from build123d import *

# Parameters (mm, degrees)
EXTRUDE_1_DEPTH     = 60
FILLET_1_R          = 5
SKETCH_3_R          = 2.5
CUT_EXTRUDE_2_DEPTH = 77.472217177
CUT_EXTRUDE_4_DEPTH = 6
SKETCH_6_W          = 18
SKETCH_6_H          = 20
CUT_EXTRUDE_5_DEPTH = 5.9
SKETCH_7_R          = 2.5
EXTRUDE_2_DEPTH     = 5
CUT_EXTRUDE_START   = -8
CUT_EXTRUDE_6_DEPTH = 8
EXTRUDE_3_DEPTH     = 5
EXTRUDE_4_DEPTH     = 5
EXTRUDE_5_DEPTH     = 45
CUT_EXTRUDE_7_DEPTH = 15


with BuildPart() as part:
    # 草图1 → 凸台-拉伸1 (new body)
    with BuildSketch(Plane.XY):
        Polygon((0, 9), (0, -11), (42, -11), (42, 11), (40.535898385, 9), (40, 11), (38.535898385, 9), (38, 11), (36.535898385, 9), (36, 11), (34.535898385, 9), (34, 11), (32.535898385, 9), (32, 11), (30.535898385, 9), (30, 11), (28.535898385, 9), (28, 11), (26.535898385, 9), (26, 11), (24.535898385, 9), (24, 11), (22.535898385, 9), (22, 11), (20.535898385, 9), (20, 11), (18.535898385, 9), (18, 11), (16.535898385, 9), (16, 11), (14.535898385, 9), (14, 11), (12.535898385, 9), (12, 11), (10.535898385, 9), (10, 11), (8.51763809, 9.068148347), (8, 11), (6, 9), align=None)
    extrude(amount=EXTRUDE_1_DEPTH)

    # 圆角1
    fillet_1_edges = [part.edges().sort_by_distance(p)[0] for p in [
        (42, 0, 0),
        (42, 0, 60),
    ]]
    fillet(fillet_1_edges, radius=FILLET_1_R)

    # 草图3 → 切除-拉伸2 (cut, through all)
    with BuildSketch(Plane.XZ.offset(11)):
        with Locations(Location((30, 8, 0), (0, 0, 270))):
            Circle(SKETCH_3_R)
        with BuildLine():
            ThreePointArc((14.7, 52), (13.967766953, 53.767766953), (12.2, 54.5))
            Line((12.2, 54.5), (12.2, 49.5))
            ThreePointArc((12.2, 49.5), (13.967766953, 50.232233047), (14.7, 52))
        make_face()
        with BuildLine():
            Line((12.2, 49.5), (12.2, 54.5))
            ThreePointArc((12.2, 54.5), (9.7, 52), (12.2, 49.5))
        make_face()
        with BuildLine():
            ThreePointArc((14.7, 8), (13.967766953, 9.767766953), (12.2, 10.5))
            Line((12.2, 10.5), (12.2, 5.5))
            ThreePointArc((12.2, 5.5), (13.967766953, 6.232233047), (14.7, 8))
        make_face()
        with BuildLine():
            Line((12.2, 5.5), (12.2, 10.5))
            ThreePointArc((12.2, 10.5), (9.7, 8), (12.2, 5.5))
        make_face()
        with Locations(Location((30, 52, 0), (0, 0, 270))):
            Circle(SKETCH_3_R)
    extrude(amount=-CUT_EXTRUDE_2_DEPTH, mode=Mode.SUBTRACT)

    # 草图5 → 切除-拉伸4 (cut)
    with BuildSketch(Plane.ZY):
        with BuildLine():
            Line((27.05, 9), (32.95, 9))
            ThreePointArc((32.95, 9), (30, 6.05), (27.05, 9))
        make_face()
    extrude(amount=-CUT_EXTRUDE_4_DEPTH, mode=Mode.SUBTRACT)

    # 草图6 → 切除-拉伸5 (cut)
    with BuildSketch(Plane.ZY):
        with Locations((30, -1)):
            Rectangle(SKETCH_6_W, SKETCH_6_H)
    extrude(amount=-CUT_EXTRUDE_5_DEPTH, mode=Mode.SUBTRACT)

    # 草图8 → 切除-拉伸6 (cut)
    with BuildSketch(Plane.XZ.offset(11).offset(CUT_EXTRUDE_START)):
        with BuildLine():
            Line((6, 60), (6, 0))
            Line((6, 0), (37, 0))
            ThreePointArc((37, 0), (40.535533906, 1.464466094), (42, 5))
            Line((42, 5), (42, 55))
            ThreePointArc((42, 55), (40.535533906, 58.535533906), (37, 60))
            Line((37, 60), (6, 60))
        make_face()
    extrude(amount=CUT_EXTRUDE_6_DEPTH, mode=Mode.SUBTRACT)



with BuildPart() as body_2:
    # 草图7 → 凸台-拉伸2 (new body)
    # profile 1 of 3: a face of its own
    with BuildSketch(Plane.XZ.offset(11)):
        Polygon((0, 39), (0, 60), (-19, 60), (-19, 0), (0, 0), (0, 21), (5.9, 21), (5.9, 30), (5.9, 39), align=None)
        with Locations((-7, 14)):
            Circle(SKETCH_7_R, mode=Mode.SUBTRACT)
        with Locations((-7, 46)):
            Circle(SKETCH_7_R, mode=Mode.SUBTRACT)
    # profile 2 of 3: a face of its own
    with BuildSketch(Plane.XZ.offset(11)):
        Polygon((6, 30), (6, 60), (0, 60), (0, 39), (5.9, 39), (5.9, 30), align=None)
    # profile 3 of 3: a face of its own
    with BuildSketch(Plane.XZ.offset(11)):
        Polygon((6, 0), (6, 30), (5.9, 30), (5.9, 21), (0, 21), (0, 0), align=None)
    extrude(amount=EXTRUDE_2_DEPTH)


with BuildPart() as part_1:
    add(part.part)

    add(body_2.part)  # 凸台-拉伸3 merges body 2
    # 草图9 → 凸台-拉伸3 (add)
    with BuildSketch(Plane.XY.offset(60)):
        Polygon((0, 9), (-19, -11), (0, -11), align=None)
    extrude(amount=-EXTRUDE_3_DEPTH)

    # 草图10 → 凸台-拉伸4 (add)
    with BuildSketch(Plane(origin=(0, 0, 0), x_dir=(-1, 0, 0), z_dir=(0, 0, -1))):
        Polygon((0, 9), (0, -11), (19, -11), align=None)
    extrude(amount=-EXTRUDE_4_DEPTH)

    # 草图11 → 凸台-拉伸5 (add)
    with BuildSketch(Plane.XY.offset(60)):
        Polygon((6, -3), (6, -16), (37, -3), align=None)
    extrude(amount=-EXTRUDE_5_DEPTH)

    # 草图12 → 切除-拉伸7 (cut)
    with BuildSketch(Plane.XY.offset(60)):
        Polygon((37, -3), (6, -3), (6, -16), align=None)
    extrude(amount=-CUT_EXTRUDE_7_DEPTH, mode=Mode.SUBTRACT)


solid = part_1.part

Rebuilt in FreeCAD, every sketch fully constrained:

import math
import FreeCAD as App
import Part
import Sketcher
Q = App.Units.Quantity


def edges_at(feature, points):
    """Names of the edges that pass closest to the given points."""
    edges = feature.Shape.Edges
    near = lambda p: min(range(len(edges)), key=lambda i: edges[i].distToShape(Part.Vertex(*p))[0])
    return sorted({f"Edge{near(p) + 1}" for p in points})

doc = App.newDocument("Part")
params = doc.addObject("Spreadsheet::Sheet", "Params")
for row, (alias, value) in enumerate([
    ("sketch1_width", "42 mm"),
    ("sketch1_width2", "6 mm"),
    ("sketch1_height", "20 mm"),
    ("sketch1_height2", "22 mm"),
    ("sketch1_length", "2 mm"),
    ("pad1_length", "60 mm"),
    ("fillet_radius", "5 mm"),
    ("sketch2_diameter", "5 mm"),
    ("sketch3_radius", "2.95 mm"),
    ("pocket2_length", "6 mm"),
    ("sketch4_width", "20 mm"),
    ("sketch4_height", "18 mm"),
    ("pocket3_length", "5.9 mm"),
    ("sketch5_radius", "5 mm"),
    ("sketch5_width", "31 mm"),
    ("sketch5_height", "60 mm"),
    ("pocket4_length", "8 mm"),
    ("sketch6_diameter", "5 mm"),
    ("sketch6_width", "25 mm"),
    ("sketch6_height", "60 mm"),
    ("pad2_length", "5 mm"),
    ("sketch7_width", "19 mm"),
    ("sketch7_height", "20 mm"),
    ("pad3_length", "5 mm"),
    ("sketch8_width", "19 mm"),
    ("sketch8_height", "20 mm"),
    ("pad4_length", "5 mm"),
    ("sketch9_width", "31 mm"),
    ("sketch9_height", "13 mm"),
    ("pad5_length", "45 mm"),
    ("sketch10_width", "31 mm"),
    ("sketch10_height", "13 mm"),
    ("pocket5_length", "15 mm"),
], start=1):
    params.set(f"A{row}", alias)
    params.set(f"B{row}", "=" + value)
    params.setAlias(f"B{row}", alias)

body = doc.addObject("PartDesign::Body", "Body")

# Sketch on XY plane
sketch1 = body.newObject("Sketcher::SketchObject", "Sketch")
sketch1.AttachmentSupport = (doc.getObject("XY_Plane"), [""])
sketch1.MapMode = "FlatFace"
sketch1.addGeometry([
    Part.LineSegment(App.Vector(0, 9, 0), App.Vector(0, -11, 0)),  # 0
    Part.LineSegment(App.Vector(0, -11, 0), App.Vector(42, -11, 0)),  # 1
    Part.LineSegment(App.Vector(42, -11, 0), App.Vector(42, 11, 0)),  # 2
    Part.LineSegment(App.Vector(42, 11, 0), App.Vector(40.535898, 9, 0)),  # 3
    Part.LineSegment(App.Vector(40.535898, 9, 0), App.Vector(40, 11, 0)),  # 4
    Part.LineSegment(App.Vector(40, 11, 0), App.Vector(38.535898, 9, 0)),  # 5
    Part.LineSegment(App.Vector(38.535898, 9, 0), App.Vector(38, 11, 0)),  # 6
    Part.LineSegment(App.Vector(38, 11, 0), App.Vector(36.535898, 9, 0)),  # 7
    Part.LineSegment(App.Vector(36.535898, 9, 0), App.Vector(36, 11, 0)),  # 8
    Part.LineSegment(App.Vector(36, 11, 0), App.Vector(34.535898, 9, 0)),  # 9
    Part.LineSegment(App.Vector(34.535898, 9, 0), App.Vector(34, 11, 0)),  # 10
    Part.LineSegment(App.Vector(34, 11, 0), App.Vector(32.535898, 9, 0)),  # 11
    Part.LineSegment(App.Vector(32.535898, 9, 0), App.Vector(32, 11, 0)),  # 12
    Part.LineSegment(App.Vector(32, 11, 0), App.Vector(30.535898, 9, 0)),  # 13
    Part.LineSegment(App.Vector(30.535898, 9, 0), App.Vector(30, 11, 0)),  # 14
    Part.LineSegment(App.Vector(30, 11, 0), App.Vector(28.535898, 9, 0)),  # 15
    Part.LineSegment(App.Vector(28.535898, 9, 0), App.Vector(28, 11, 0)),  # 16
    Part.LineSegment(App.Vector(28, 11, 0), App.Vector(26.535898, 9, 0)),  # 17
    Part.LineSegment(App.Vector(26.535898, 9, 0), App.Vector(26, 11, 0)),  # 18
    Part.LineSegment(App.Vector(26, 11, 0), App.Vector(24.535898, 9, 0)),  # 19
    Part.LineSegment(App.Vector(24.535898, 9, 0), App.Vector(24, 11, 0)),  # 20
    Part.LineSegment(App.Vector(24, 11, 0), App.Vector(22.535898, 9, 0)),  # 21
    Part.LineSegment(App.Vector(22.535898, 9, 0), App.Vector(22, 11, 0)),  # 22
    Part.LineSegment(App.Vector(22, 11, 0), App.Vector(20.535898, 9, 0)),  # 23
    Part.LineSegment(App.Vector(20.535898, 9, 0), App.Vector(20, 11, 0)),  # 24
    Part.LineSegment(App.Vector(20, 11, 0), App.Vector(18.535898, 9, 0)),  # 25
    Part.LineSegment(App.Vector(18.535898, 9, 0), App.Vector(18, 11, 0)),  # 26
    Part.LineSegment(App.Vector(18, 11, 0), App.Vector(16.535898, 9, 0)),  # 27
    Part.LineSegment(App.Vector(16.535898, 9, 0), App.Vector(16, 11, 0)),  # 28
    Part.LineSegment(App.Vector(16, 11, 0), App.Vector(14.535898, 9, 0)),  # 29
    Part.LineSegment(App.Vector(14.535898, 9, 0), App.Vector(14, 11, 0)),  # 30
    Part.LineSegment(App.Vector(14, 11, 0), App.Vector(12.535898, 9, 0)),  # 31
    Part.LineSegment(App.Vector(12.535898, 9, 0), App.Vector(12, 11, 0)),  # 32
    Part.LineSegment(App.Vector(12, 11, 0), App.Vector(10.535898, 9, 0)),  # 33
    Part.LineSegment(App.Vector(10.535898, 9, 0), App.Vector(10, 11, 0)),  # 34
    Part.LineSegment(App.Vector(10, 11, 0), App.Vector(8.517638, 9.068148, 0)),  # 35
    Part.LineSegment(App.Vector(8.517638, 9.068148, 0), App.Vector(8, 11, 0)),  # 36
    Part.LineSegment(App.Vector(8, 11, 0), App.Vector(6, 9, 0)),  # 37
    Part.LineSegment(App.Vector(6, 9, 0), App.Vector(0, 9, 0)),  # 38
], False)
sketch1.addConstraint([
    Sketcher.Constraint("Coincident", 0, 2, 1, 1),
    Sketcher.Constraint("Coincident", 1, 2, 2, 1),
    Sketcher.Constraint("Coincident", 2, 2, 3, 1),
    Sketcher.Constraint("Coincident", 3, 2, 4, 1),
    Sketcher.Constraint("Coincident", 4, 2, 5, 1),
    Sketcher.Constraint("Coincident", 5, 2, 6, 1),
    Sketcher.Constraint("Coincident", 6, 2, 7, 1),
    Sketcher.Constraint("Coincident", 7, 2, 8, 1),
    Sketcher.Constraint("Coincident", 8, 2, 9, 1),
    Sketcher.Constraint("Coincident", 9, 2, 10, 1),
    Sketcher.Constraint("Coincident", 10, 2, 11, 1),
    Sketcher.Constraint("Coincident", 11, 2, 12, 1),
    Sketcher.Constraint("Coincident", 12, 2, 13, 1),
    Sketcher.Constraint("Coincident", 13, 2, 14, 1),
    Sketcher.Constraint("Coincident", 14, 2, 15, 1),
    Sketcher.Constraint("Coincident", 15, 2, 16, 1),
    Sketcher.Constraint("Coincident", 16, 2, 17, 1),
    Sketcher.Constraint("Coincident", 17, 2, 18, 1),
    Sketcher.Constraint("Coincident", 18, 2, 19, 1),
    Sketcher.Constraint("Coincident", 19, 2, 20, 1),
    Sketcher.Constraint("Coincident", 20, 2, 21, 1),
    Sketcher.Constraint("Coincident", 21, 2, 22, 1),
    Sketcher.Constraint("Coincident", 22, 2, 23, 1),
    Sketcher.Constraint("Coincident", 23, 2, 24, 1),
    Sketcher.Constraint("Coincident", 24, 2, 25, 1),
    Sketcher.Constraint("Coincident", 25, 2, 26, 1),
    Sketcher.Constraint("Coincident", 26, 2, 27, 1),
    Sketcher.Constraint("Coincident", 27, 2, 28, 1),
    Sketcher.Constraint("Coincident", 28, 2, 29, 1),
    Sketcher.Constraint("Coincident", 29, 2, 30, 1),
    Sketcher.Constraint("Coincident", 30, 2, 31, 1),
    Sketcher.Constraint("Coincident", 31, 2, 32, 1),
    Sketcher.Constraint("Coincident", 32, 2, 33, 1),
    Sketcher.Constraint("Coincident", 33, 2, 34, 1),
    Sketcher.Constraint("Coincident", 34, 2, 35, 1),
    Sketcher.Constraint("Coincident", 35, 2, 36, 1),
    Sketcher.Constraint("Coincident", 36, 2, 37, 1),
    Sketcher.Constraint("Coincident", 37, 2, 38, 1),
    Sketcher.Constraint("Coincident", 38, 2, 0, 1),
    Sketcher.Constraint("Vertical", 0),
    Sketcher.Constraint("Horizontal", 1),
    Sketcher.Constraint("Vertical", 2),
    Sketcher.Constraint("Horizontal", 38),
    Sketcher.Constraint("PointOnObject", 0, 2, -2),
    Sketcher.Constraint("Parallel", 3, 5),
    Sketcher.Constraint("Parallel", 4, 6),
    Sketcher.Constraint("Parallel", 5, 7),
    Sketcher.Constraint("Parallel", 6, 8),
    Sketcher.Constraint("Parallel", 7, 9),
    Sketcher.Constraint("Parallel", 8, 10),
    Sketcher.Constraint("Parallel", 9, 11),
    Sketcher.Constraint("Parallel", 10, 12),
    Sketcher.Constraint("Parallel", 11, 13),
    Sketcher.Constraint("Parallel", 12, 14),
    Sketcher.Constraint("Parallel", 13, 15),
    Sketcher.Constraint("Parallel", 14, 16),
    Sketcher.Constraint("Parallel", 15, 17),
    Sketcher.Constraint("Parallel", 16, 18),
    Sketcher.Constraint("Parallel", 17, 19),
    Sketcher.Constraint("Parallel", 18, 20),
    Sketcher.Constraint("Parallel", 19, 21),
    Sketcher.Constraint("Parallel", 20, 22),
    Sketcher.Constraint("Parallel", 21, 23),
    Sketcher.Constraint("Parallel", 22, 24),
    Sketcher.Constraint("Parallel", 23, 25),
    Sketcher.Constraint("Parallel", 24, 26),
    Sketcher.Constraint("Parallel", 25, 27),
    Sketcher.Constraint("Parallel", 26, 28),
    Sketcher.Constraint("Parallel", 27, 29),
    Sketcher.Constraint("Parallel", 28, 30),
    Sketcher.Constraint("Parallel", 29, 31),
    Sketcher.Constraint("Parallel", 30, 32),
    Sketcher.Constraint("Parallel", 31, 33),
    Sketcher.Constraint("Parallel", 32, 34),
    Sketcher.Constraint("Parallel", 34, 36),
    Sketcher.Constraint("Horizontal", 2, 2, 4, 2),
    Sketcher.Constraint("Horizontal", 3, 2, 5, 2),
    Sketcher.Constraint("Horizontal", 4, 2, 6, 2),
    Sketcher.Constraint("Horizontal", 5, 2, 7, 2),
    Sketcher.Constraint("Horizontal", 6, 2, 8, 2),
    Sketcher.Constraint("Horizontal", 7, 2, 9, 2),
    Sketcher.Constraint("Horizontal", 8, 2, 10, 2),
    Sketcher.Constraint("Horizontal", 9, 2, 11, 2),
    Sketcher.Constraint("Horizontal", 10, 2, 12, 2),
    Sketcher.Constraint("Horizontal", 11, 2, 13, 2),
    Sketcher.Constraint("Horizontal", 12, 2, 14, 2),
    Sketcher.Constraint("Horizontal", 13, 2, 15, 2),
    Sketcher.Constraint("Horizontal", 14, 2, 16, 2),
    Sketcher.Constraint("Horizontal", 15, 2, 17, 2),
    Sketcher.Constraint("Horizontal", 16, 2, 18, 2),
    Sketcher.Constraint("Horizontal", 17, 2, 19, 2),
    Sketcher.Constraint("Horizontal", 18, 2, 20, 2),
    Sketcher.Constraint("Horizontal", 19, 2, 21, 2),
    Sketcher.Constraint("Horizontal", 20, 2, 22, 2),
    Sketcher.Constraint("Horizontal", 21, 2, 23, 2),
    Sketcher.Constraint("Horizontal", 22, 2, 24, 2),
    Sketcher.Constraint("Horizontal", 23, 2, 25, 2),
    Sketcher.Constraint("Horizontal", 24, 2, 26, 2),
    Sketcher.Constraint("Horizontal", 25, 2, 27, 2),
    Sketcher.Constraint("Horizontal", 26, 2, 28, 2),
    Sketcher.Constraint("Horizontal", 27, 2, 29, 2),
    Sketcher.Constraint("Horizontal", 28, 2, 30, 2),
    Sketcher.Constraint("Horizontal", 29, 2, 31, 2),
    Sketcher.Constraint("Horizontal", 30, 2, 32, 2),
    Sketcher.Constraint("Horizontal", 31, 2, 33, 2),
    Sketcher.Constraint("Horizontal", 32, 2, 34, 2),
    Sketcher.Constraint("Horizontal", 34, 2, 36, 2),
    Sketcher.Constraint("Horizontal", 33, 2, 37, 2),
    Sketcher.Constraint("DistanceX", 1, 1, 1, 2, 42.0),
    Sketcher.Constraint("DistanceX", 38, 2, 38, 1, 6.0),
    Sketcher.Constraint("DistanceY", 0, 2, 0, 1, 20.0),
    Sketcher.Constraint("DistanceY", 2, 1, 2, 2, 22.0),
    Sketcher.Constraint("Angle", 4, Q("105 deg")),
    Sketcher.Constraint("Angle", 37, Q("-135 deg")),
    Sketcher.Constraint("Distance", 36, 2.0),
    Sketcher.Constraint("DistanceY", 0, 2, -1, 1, 11.0),
    Sketcher.Constraint("DistanceX", -1, 1, 4, 2, 40.0),
])
sketch1.setExpression("Constraints[108]", "Params.sketch1_width")
sketch1.setExpression("Constraints[109]", "Params.sketch1_width2")
sketch1.setExpression("Constraints[110]", "Params.sketch1_height")
sketch1.setExpression("Constraints[111]", "Params.sketch1_height2")
sketch1.setExpression("Constraints[114]", "Params.sketch1_length")
pad1 = body.newObject("PartDesign::Pad", "Pad")
pad1.Profile = sketch1
pad1.setExpression("Length", "Params.pad1_length")
doc.recompute()

fillet = body.newObject("PartDesign::Fillet", "Fillet")
fillet.Base = (pad1, edges_at(pad1, [(42, 0, 0), (42, 0, 60)]))
fillet.setExpression("Radius", "Params.fillet_radius")

# Sketch on XZ plane
sketch2 = body.newObject("Sketcher::SketchObject", "Sketch001")
sketch2.AttachmentSupport = (doc.getObject("XZ_Plane"), [""])
sketch2.MapMode = "FlatFace"
sketch2.AttachmentOffset = App.Placement(App.Vector(0, 0, 11), App.Rotation())
sketch2.addGeometry([
    Part.Circle(App.Vector(30, 8, 0), App.Vector(0, 0, 1), 2.5),  # 0
    Part.ArcOfCircle(Part.Circle(App.Vector(12.2, 52, 0), App.Vector(0, 0, 1), 2.5), math.radians(0), math.radians(90)),  # 1
    Part.ArcOfCircle(Part.Circle(App.Vector(12.2, 52, 0), App.Vector(0, 0, 1), 2.5), math.radians(90), math.radians(270)),  # 2
    Part.ArcOfCircle(Part.Circle(App.Vector(12.2, 52, 0), App.Vector(0, 0, 1), 2.5), math.radians(-90), math.radians(0)),  # 3
    Part.ArcOfCircle(Part.Circle(App.Vector(12.2, 8, 0), App.Vector(0, 0, 1), 2.5), math.radians(0), math.radians(90)),  # 4
    Part.ArcOfCircle(Part.Circle(App.Vector(12.2, 8, 0), App.Vector(0, 0, 1), 2.5), math.radians(90), math.radians(270)),  # 5
    Part.ArcOfCircle(Part.Circle(App.Vector(12.2, 8, 0), App.Vector(0, 0, 1), 2.5), math.radians(-90), math.radians(0)),  # 6
    Part.Circle(App.Vector(30, 52, 0), App.Vector(0, 0, 1), 2.5),  # 7
], False)
sketch2.addConstraint([
    Sketcher.Constraint("Tangent", 1, 2, 2, 1),
    Sketcher.Constraint("Tangent", 2, 2, 3, 1),
    Sketcher.Constraint("Tangent", 3, 2, 1, 1),
    Sketcher.Constraint("Tangent", 4, 2, 5, 1),
    Sketcher.Constraint("Tangent", 5, 2, 6, 1),
    Sketcher.Constraint("Tangent", 6, 2, 4, 1),
    Sketcher.Constraint("Equal", 0, 1),
    Sketcher.Constraint("Equal", 3, 4),
    Sketcher.Constraint("Equal", 6, 7),
    Sketcher.Constraint("Horizontal", 0, 3, 4, 3),
    Sketcher.Constraint("Horizontal", 3, 3, 7, 3),
    Sketcher.Constraint("Horizontal", 7, 3, 3, 2),
    Sketcher.Constraint("Horizontal", 5, 3, 6, 2),
    Sketcher.Constraint("Vertical", 3, 3, 4, 3),
    Sketcher.Constraint("Vertical", 0, 3, 7, 3),
    Sketcher.Constraint("Vertical", 6, 3, 1, 2),
    Sketcher.Constraint("Vertical", 1, 2, 2, 2),
    Sketcher.Constraint("Vertical", 2, 2, 4, 2),
    Sketcher.Constraint("Vertical", 4, 2, 5, 2),
    Sketcher.Constraint("Diameter", 0, 5.0),
    Sketcher.Constraint("DistanceX", -1, 1, 0, 3, 30.0),
    Sketcher.Constraint("DistanceY", -1, 1, 0, 3, 8.0),
    Sketcher.Constraint("DistanceY", -1, 1, 1, 3, 52.0),
    Sketcher.Constraint("DistanceX", -1, 1, 1, 3, 12.2),
])
sketch2.setExpression("Constraints[19]", "Params.sketch2_diameter")
pocket1 = body.newObject("PartDesign::Pocket", "Pocket")
pocket1.Profile = sketch2
pocket1.Type = "ThroughAll"

# Sketch on YZ plane
sketch3 = body.newObject("Sketcher::SketchObject", "Sketch002")
sketch3.AttachmentSupport = (doc.getObject("YZ_Plane"), [""])
sketch3.MapMode = "FlatFace"
sketch3.addGeometry([
    Part.LineSegment(App.Vector(9, 32.95, 0), App.Vector(9, 27.05, 0)),
    Part.ArcOfCircle(Part.Circle(App.Vector(9, 30, 0), App.Vector(0, 0, 1), 2.95), math.radians(90), math.radians(270)),
], False)
sketch3.addConstraint([
    Sketcher.Constraint("Coincident", 0, 1, 1, 1),
    Sketcher.Constraint("Coincident", 1, 2, 0, 2),
    Sketcher.Constraint("Vertical", 0),
    Sketcher.Constraint("Vertical", 1, 3, 0, 1),
    Sketcher.Constraint("Radius", 1, 2.95),
    Sketcher.Constraint("DistanceX", -1, 1, 1, 3, 9.0),
    Sketcher.Constraint("DistanceY", -1, 1, 1, 3, 30.0),
])
sketch3.setExpression("Constraints[4]", "Params.sketch3_radius")
pocket2 = body.newObject("PartDesign::Pocket", "Pocket001")
pocket2.Profile = sketch3
pocket2.setExpression("Length", "Params.pocket2_length")
pocket2.Reversed = True

# Sketch on YZ plane
sketch4 = body.newObject("Sketcher::SketchObject", "Sketch003")
sketch4.AttachmentSupport = (doc.getObject("YZ_Plane"), [""])
sketch4.MapMode = "FlatFace"
sketch4.addGeometry([
    Part.LineSegment(App.Vector(9, 21, 0), App.Vector(-11, 21, 0)),
    Part.LineSegment(App.Vector(-11, 21, 0), App.Vector(-11, 39, 0)),
    Part.LineSegment(App.Vector(-11, 39, 0), App.Vector(9, 39, 0)),
    Part.LineSegment(App.Vector(9, 39, 0), App.Vector(9, 21, 0)),
], False)
sketch4.addConstraint([
    Sketcher.Constraint("Coincident", 0, 2, 1, 1),
    Sketcher.Constraint("Coincident", 1, 2, 2, 1),
    Sketcher.Constraint("Coincident", 2, 2, 3, 1),
    Sketcher.Constraint("Coincident", 3, 2, 0, 1),
    Sketcher.Constraint("Horizontal", 0),
    Sketcher.Constraint("Vertical", 1),
    Sketcher.Constraint("Horizontal", 2),
    Sketcher.Constraint("Vertical", 3),
    Sketcher.Constraint("DistanceX", 0, 2, 0, 1, 20.0),
    Sketcher.Constraint("DistanceY", 1, 1, 1, 2, 18.0),
    Sketcher.Constraint("DistanceX", 0, 2, -1, 1, 11.0),
    Sketcher.Constraint("DistanceY", -1, 1, 0, 2, 21.0),
])
sketch4.setExpression("Constraints[8]", "Params.sketch4_width")
sketch4.setExpression("Constraints[9]", "Params.sketch4_height")
pocket3 = body.newObject("PartDesign::Pocket", "Pocket002")
pocket3.Profile = sketch4
pocket3.setExpression("Length", "Params.pocket3_length")
pocket3.Reversed = True

# Sketch on XZ plane
sketch5 = body.newObject("Sketcher::SketchObject", "Sketch004")
sketch5.AttachmentSupport = (doc.getObject("XZ_Plane"), [""])
sketch5.MapMode = "FlatFace"
sketch5.AttachmentOffset = App.Placement(App.Vector(0, 0, 3), App.Rotation())
sketch5.addGeometry([
    Part.LineSegment(App.Vector(6, 60, 0), App.Vector(6, 0, 0)),  # 0
    Part.LineSegment(App.Vector(6, 0, 0), App.Vector(37, 0, 0)),  # 1
    Part.ArcOfCircle(Part.Circle(App.Vector(37, 5, 0), App.Vector(0, 0, 1), 5), math.radians(-90), math.radians(0)),  # 2
    Part.LineSegment(App.Vector(42, 5, 0), App.Vector(42, 55, 0)),  # 3
    Part.ArcOfCircle(Part.Circle(App.Vector(37, 55, 0), App.Vector(0, 0, 1), 5), math.radians(0), math.radians(90)),  # 4
    Part.LineSegment(App.Vector(37, 60, 0), App.Vector(6, 60, 0)),  # 5
], False)
sketch5.addConstraint([
    Sketcher.Constraint("Coincident", 0, 2, 1, 1),
    Sketcher.Constraint("Tangent", 1, 2, 2, 1),
    Sketcher.Constraint("Tangent", 2, 2, 3, 1),
    Sketcher.Constraint("Tangent", 3, 2, 4, 1),
    Sketcher.Constraint("Tangent", 4, 2, 5, 1),
    Sketcher.Constraint("Coincident", 5, 2, 0, 1),
    Sketcher.Constraint("Vertical", 0),
    Sketcher.Constraint("Horizontal", 1),
    Sketcher.Constraint("Vertical", 3),
    Sketcher.Constraint("Horizontal", 5),
    Sketcher.Constraint("Equal", 2, 4),
    Sketcher.Constraint("PointOnObject", 0, 2, -1),
    Sketcher.Constraint("Radius", 2, 5.0),
    Sketcher.Constraint("DistanceX", 1, 1, 1, 2, 31.0),
    Sketcher.Constraint("DistanceY", 0, 2, 0, 1, 60.0),
    Sketcher.Constraint("DistanceX", -1, 1, 2, 3, 37.0),
])
sketch5.setExpression("Constraints[12]", "Params.sketch5_radius")
sketch5.setExpression("Constraints[13]", "Params.sketch5_width")
sketch5.setExpression("Constraints[14]", "Params.sketch5_height")
pocket4 = body.newObject("PartDesign::Pocket", "Pocket003")
pocket4.Profile = sketch5
pocket4.setExpression("Length", "Params.pocket4_length")
pocket4.Reversed = True
body2 = doc.addObject("PartDesign::Body", "Body001")

# Sketch on XZ plane
sketch6 = body2.newObject("Sketcher::SketchObject", "Sketch005")
sketch6.AttachmentSupport = (doc.getObject("XZ_Plane001"), [""])
sketch6.MapMode = "FlatFace"
sketch6.AttachmentOffset = App.Placement(App.Vector(0, 0, 11), App.Rotation())
sketch6.addGeometry([
    Part.LineSegment(App.Vector(-19, 60, 0), App.Vector(-19, 0, 0)),  # 0
    Part.LineSegment(App.Vector(-19, 0, 0), App.Vector(6, 0, 0)),  # 1
    Part.LineSegment(App.Vector(6, 0, 0), App.Vector(6, 60, 0)),  # 2
    Part.LineSegment(App.Vector(6, 60, 0), App.Vector(-19, 60, 0)),  # 3
    Part.Circle(App.Vector(-7, 14, 0), App.Vector(0, 0, 1), 2.5),  # 4
    Part.Circle(App.Vector(-7, 46, 0), App.Vector(0, 0, 1), 2.5),  # 5
], False)
sketch6.addConstraint([
    Sketcher.Constraint("Coincident", 0, 2, 1, 1),
    Sketcher.Constraint("Coincident", 1, 2, 2, 1),
    Sketcher.Constraint("Coincident", 2, 2, 3, 1),
    Sketcher.Constraint("Coincident", 3, 2, 0, 1),
    Sketcher.Constraint("Vertical", 0),
    Sketcher.Constraint("Horizontal", 1),
    Sketcher.Constraint("Vertical", 2),
    Sketcher.Constraint("Horizontal", 3),
    Sketcher.Constraint("Equal", 4, 5),
    Sketcher.Constraint("PointOnObject", 0, 2, -1),
    Sketcher.Constraint("Vertical", 4, 3, 5, 3),
    Sketcher.Constraint("Diameter", 4, 5.0),
    Sketcher.Constraint("DistanceX", 1, 1, 1, 2, 25.0),
    Sketcher.Constraint("DistanceY", 0, 2, 0, 1, 60.0),
    Sketcher.Constraint("DistanceX", 4, 3, -1, 1, 7.0),
    Sketcher.Constraint("DistanceY", -1, 1, 4, 3, 14.0),
    Sketcher.Constraint("DistanceY", -1, 1, 5, 3, 46.0),
    Sketcher.Constraint("DistanceX", 0, 2, -1, 1, 19.0),
])
sketch6.setExpression("Constraints[11]", "Params.sketch6_diameter")
sketch6.setExpression("Constraints[12]", "Params.sketch6_width")
sketch6.setExpression("Constraints[13]", "Params.sketch6_height")
pad2 = body2.newObject("PartDesign::Pad", "Pad001")
pad2.Profile = sketch6
pad2.setExpression("Length", "Params.pad2_length")
doc.recompute()

boolean = body.newObject("PartDesign::Boolean", "Boolean")
boolean.Type = "Fuse"
boolean.addObjects([body2])

# Sketch on XY plane
sketch7 = body.newObject("Sketcher::SketchObject", "Sketch006")
sketch7.AttachmentSupport = (doc.getObject("XY_Plane"), [""])
sketch7.MapMode = "FlatFace"
sketch7.AttachmentOffset = App.Placement(App.Vector(0, 0, 60), App.Rotation())
sketch7.addGeometry([
    Part.LineSegment(App.Vector(0, 9, 0), App.Vector(-19, -11, 0)),
    Part.LineSegment(App.Vector(-19, -11, 0), App.Vector(0, -11, 0)),
    Part.LineSegment(App.Vector(0, -11, 0), App.Vector(0, 9, 0)),
], False)
sketch7.addConstraint([
    Sketcher.Constraint("Coincident", 0, 2, 1, 1),
    Sketcher.Constraint("Coincident", 1, 2, 2, 1),
    Sketcher.Constraint("Coincident", 2, 2, 0, 1),
    Sketcher.Constraint("Horizontal", 1),
    Sketcher.Constraint("Vertical", 2),
    Sketcher.Constraint("PointOnObject", 1, 2, -2),
    Sketcher.Constraint("DistanceX", 1, 1, 1, 2, 19.0),
    Sketcher.Constraint("DistanceY", 2, 1, 2, 2, 20.0),
    Sketcher.Constraint("DistanceY", 0, 2, -1, 1, 11.0),
])
sketch7.setExpression("Constraints[6]", "Params.sketch7_width")
sketch7.setExpression("Constraints[7]", "Params.sketch7_height")
pad3 = body.newObject("PartDesign::Pad", "Pad002")
pad3.Profile = sketch7
pad3.setExpression("Length", "Params.pad3_length")
pad3.Reversed = True

# Sketch on XY plane
sketch8 = body.newObject("Sketcher::SketchObject", "Sketch007")
sketch8.AttachmentSupport = (doc.getObject("XY_Plane"), [""])
sketch8.MapMode = "FlatFace"
sketch8.addGeometry([
    Part.LineSegment(App.Vector(0, 9, 0), App.Vector(0, -11, 0)),
    Part.LineSegment(App.Vector(0, -11, 0), App.Vector(-19, -11, 0)),
    Part.LineSegment(App.Vector(-19, -11, 0), App.Vector(0, 9, 0)),
], False)
sketch8.addConstraint([
    Sketcher.Constraint("Coincident", 0, 2, 1, 1),
    Sketcher.Constraint("Coincident", 1, 2, 2, 1),
    Sketcher.Constraint("Coincident", 2, 2, 0, 1),
    Sketcher.Constraint("Vertical", 0),
    Sketcher.Constraint("Horizontal", 1),
    Sketcher.Constraint("PointOnObject", 0, 2, -2),
    Sketcher.Constraint("DistanceX", 1, 2, 1, 1, 19.0),
    Sketcher.Constraint("DistanceY", 0, 2, 0, 1, 20.0),
    Sketcher.Constraint("DistanceY", 0, 2, -1, 1, 11.0),
])
sketch8.setExpression("Constraints[6]", "Params.sketch8_width")
sketch8.setExpression("Constraints[7]", "Params.sketch8_height")
pad4 = body.newObject("PartDesign::Pad", "Pad003")
pad4.Profile = sketch8
pad4.setExpression("Length", "Params.pad4_length")

# Sketch on XY plane
sketch9 = body.newObject("Sketcher::SketchObject", "Sketch008")
sketch9.AttachmentSupport = (doc.getObject("XY_Plane"), [""])
sketch9.MapMode = "FlatFace"
sketch9.AttachmentOffset = App.Placement(App.Vector(0, 0, 60), App.Rotation())
sketch9.addGeometry([
    Part.LineSegment(App.Vector(6, -3, 0), App.Vector(6, -16, 0)),
    Part.LineSegment(App.Vector(6, -16, 0), App.Vector(37, -3, 0)),
    Part.LineSegment(App.Vector(37, -3, 0), App.Vector(6, -3, 0)),
], False)
sketch9.addConstraint([
    Sketcher.Constraint("Coincident", 0, 2, 1, 1),
    Sketcher.Constraint("Coincident", 1, 2, 2, 1),
    Sketcher.Constraint("Coincident", 2, 2, 0, 1),
    Sketcher.Constraint("Vertical", 0),
    Sketcher.Constraint("Horizontal", 2),
    Sketcher.Constraint("DistanceX", 2, 2, 2, 1, 31.0),
    Sketcher.Constraint("DistanceY", 0, 2, 0, 1, 13.0),
    Sketcher.Constraint("DistanceX", -1, 1, 0, 2, 6.0),
    Sketcher.Constraint("DistanceY", 0, 2, -1, 1, 16.0),
])
sketch9.setExpression("Constraints[5]", "Params.sketch9_width")
sketch9.setExpression("Constraints[6]", "Params.sketch9_height")
pad5 = body.newObject("PartDesign::Pad", "Pad004")
pad5.Profile = sketch9
pad5.setExpression("Length", "Params.pad5_length")
pad5.Reversed = True

# Sketch on XY plane
sketch10 = body.newObject("Sketcher::SketchObject", "Sketch009")
sketch10.AttachmentSupport = (doc.getObject("XY_Plane"), [""])
sketch10.MapMode = "FlatFace"
sketch10.AttachmentOffset = App.Placement(App.Vector(0, 0, 60), App.Rotation())
sketch10.addGeometry([
    Part.LineSegment(App.Vector(37, -3, 0), App.Vector(6, -3, 0)),
    Part.LineSegment(App.Vector(6, -3, 0), App.Vector(6, -16, 0)),
    Part.LineSegment(App.Vector(6, -16, 0), App.Vector(37, -3, 0)),
], False)
sketch10.addConstraint([
    Sketcher.Constraint("Coincident", 0, 2, 1, 1),
    Sketcher.Constraint("Coincident", 1, 2, 2, 1),
    Sketcher.Constraint("Coincident", 2, 2, 0, 1),
    Sketcher.Constraint("Horizontal", 0),
    Sketcher.Constraint("Vertical", 1),
    Sketcher.Constraint("DistanceX", 0, 2, 0, 1, 31.0),
    Sketcher.Constraint("DistanceY", 1, 2, 1, 1, 13.0),
    Sketcher.Constraint("DistanceX", -1, 1, 0, 2, 6.0),
    Sketcher.Constraint("DistanceY", 0, 2, -1, 1, 3.0),
])
sketch10.setExpression("Constraints[5]", "Params.sketch10_width")
sketch10.setExpression("Constraints[6]", "Params.sketch10_height")
pocket5 = body.newObject("PartDesign::Pocket", "Pocket004")
pocket5.Profile = sketch10
pocket5.setExpression("Length", "Params.pocket5_length")

doc.recompute()
